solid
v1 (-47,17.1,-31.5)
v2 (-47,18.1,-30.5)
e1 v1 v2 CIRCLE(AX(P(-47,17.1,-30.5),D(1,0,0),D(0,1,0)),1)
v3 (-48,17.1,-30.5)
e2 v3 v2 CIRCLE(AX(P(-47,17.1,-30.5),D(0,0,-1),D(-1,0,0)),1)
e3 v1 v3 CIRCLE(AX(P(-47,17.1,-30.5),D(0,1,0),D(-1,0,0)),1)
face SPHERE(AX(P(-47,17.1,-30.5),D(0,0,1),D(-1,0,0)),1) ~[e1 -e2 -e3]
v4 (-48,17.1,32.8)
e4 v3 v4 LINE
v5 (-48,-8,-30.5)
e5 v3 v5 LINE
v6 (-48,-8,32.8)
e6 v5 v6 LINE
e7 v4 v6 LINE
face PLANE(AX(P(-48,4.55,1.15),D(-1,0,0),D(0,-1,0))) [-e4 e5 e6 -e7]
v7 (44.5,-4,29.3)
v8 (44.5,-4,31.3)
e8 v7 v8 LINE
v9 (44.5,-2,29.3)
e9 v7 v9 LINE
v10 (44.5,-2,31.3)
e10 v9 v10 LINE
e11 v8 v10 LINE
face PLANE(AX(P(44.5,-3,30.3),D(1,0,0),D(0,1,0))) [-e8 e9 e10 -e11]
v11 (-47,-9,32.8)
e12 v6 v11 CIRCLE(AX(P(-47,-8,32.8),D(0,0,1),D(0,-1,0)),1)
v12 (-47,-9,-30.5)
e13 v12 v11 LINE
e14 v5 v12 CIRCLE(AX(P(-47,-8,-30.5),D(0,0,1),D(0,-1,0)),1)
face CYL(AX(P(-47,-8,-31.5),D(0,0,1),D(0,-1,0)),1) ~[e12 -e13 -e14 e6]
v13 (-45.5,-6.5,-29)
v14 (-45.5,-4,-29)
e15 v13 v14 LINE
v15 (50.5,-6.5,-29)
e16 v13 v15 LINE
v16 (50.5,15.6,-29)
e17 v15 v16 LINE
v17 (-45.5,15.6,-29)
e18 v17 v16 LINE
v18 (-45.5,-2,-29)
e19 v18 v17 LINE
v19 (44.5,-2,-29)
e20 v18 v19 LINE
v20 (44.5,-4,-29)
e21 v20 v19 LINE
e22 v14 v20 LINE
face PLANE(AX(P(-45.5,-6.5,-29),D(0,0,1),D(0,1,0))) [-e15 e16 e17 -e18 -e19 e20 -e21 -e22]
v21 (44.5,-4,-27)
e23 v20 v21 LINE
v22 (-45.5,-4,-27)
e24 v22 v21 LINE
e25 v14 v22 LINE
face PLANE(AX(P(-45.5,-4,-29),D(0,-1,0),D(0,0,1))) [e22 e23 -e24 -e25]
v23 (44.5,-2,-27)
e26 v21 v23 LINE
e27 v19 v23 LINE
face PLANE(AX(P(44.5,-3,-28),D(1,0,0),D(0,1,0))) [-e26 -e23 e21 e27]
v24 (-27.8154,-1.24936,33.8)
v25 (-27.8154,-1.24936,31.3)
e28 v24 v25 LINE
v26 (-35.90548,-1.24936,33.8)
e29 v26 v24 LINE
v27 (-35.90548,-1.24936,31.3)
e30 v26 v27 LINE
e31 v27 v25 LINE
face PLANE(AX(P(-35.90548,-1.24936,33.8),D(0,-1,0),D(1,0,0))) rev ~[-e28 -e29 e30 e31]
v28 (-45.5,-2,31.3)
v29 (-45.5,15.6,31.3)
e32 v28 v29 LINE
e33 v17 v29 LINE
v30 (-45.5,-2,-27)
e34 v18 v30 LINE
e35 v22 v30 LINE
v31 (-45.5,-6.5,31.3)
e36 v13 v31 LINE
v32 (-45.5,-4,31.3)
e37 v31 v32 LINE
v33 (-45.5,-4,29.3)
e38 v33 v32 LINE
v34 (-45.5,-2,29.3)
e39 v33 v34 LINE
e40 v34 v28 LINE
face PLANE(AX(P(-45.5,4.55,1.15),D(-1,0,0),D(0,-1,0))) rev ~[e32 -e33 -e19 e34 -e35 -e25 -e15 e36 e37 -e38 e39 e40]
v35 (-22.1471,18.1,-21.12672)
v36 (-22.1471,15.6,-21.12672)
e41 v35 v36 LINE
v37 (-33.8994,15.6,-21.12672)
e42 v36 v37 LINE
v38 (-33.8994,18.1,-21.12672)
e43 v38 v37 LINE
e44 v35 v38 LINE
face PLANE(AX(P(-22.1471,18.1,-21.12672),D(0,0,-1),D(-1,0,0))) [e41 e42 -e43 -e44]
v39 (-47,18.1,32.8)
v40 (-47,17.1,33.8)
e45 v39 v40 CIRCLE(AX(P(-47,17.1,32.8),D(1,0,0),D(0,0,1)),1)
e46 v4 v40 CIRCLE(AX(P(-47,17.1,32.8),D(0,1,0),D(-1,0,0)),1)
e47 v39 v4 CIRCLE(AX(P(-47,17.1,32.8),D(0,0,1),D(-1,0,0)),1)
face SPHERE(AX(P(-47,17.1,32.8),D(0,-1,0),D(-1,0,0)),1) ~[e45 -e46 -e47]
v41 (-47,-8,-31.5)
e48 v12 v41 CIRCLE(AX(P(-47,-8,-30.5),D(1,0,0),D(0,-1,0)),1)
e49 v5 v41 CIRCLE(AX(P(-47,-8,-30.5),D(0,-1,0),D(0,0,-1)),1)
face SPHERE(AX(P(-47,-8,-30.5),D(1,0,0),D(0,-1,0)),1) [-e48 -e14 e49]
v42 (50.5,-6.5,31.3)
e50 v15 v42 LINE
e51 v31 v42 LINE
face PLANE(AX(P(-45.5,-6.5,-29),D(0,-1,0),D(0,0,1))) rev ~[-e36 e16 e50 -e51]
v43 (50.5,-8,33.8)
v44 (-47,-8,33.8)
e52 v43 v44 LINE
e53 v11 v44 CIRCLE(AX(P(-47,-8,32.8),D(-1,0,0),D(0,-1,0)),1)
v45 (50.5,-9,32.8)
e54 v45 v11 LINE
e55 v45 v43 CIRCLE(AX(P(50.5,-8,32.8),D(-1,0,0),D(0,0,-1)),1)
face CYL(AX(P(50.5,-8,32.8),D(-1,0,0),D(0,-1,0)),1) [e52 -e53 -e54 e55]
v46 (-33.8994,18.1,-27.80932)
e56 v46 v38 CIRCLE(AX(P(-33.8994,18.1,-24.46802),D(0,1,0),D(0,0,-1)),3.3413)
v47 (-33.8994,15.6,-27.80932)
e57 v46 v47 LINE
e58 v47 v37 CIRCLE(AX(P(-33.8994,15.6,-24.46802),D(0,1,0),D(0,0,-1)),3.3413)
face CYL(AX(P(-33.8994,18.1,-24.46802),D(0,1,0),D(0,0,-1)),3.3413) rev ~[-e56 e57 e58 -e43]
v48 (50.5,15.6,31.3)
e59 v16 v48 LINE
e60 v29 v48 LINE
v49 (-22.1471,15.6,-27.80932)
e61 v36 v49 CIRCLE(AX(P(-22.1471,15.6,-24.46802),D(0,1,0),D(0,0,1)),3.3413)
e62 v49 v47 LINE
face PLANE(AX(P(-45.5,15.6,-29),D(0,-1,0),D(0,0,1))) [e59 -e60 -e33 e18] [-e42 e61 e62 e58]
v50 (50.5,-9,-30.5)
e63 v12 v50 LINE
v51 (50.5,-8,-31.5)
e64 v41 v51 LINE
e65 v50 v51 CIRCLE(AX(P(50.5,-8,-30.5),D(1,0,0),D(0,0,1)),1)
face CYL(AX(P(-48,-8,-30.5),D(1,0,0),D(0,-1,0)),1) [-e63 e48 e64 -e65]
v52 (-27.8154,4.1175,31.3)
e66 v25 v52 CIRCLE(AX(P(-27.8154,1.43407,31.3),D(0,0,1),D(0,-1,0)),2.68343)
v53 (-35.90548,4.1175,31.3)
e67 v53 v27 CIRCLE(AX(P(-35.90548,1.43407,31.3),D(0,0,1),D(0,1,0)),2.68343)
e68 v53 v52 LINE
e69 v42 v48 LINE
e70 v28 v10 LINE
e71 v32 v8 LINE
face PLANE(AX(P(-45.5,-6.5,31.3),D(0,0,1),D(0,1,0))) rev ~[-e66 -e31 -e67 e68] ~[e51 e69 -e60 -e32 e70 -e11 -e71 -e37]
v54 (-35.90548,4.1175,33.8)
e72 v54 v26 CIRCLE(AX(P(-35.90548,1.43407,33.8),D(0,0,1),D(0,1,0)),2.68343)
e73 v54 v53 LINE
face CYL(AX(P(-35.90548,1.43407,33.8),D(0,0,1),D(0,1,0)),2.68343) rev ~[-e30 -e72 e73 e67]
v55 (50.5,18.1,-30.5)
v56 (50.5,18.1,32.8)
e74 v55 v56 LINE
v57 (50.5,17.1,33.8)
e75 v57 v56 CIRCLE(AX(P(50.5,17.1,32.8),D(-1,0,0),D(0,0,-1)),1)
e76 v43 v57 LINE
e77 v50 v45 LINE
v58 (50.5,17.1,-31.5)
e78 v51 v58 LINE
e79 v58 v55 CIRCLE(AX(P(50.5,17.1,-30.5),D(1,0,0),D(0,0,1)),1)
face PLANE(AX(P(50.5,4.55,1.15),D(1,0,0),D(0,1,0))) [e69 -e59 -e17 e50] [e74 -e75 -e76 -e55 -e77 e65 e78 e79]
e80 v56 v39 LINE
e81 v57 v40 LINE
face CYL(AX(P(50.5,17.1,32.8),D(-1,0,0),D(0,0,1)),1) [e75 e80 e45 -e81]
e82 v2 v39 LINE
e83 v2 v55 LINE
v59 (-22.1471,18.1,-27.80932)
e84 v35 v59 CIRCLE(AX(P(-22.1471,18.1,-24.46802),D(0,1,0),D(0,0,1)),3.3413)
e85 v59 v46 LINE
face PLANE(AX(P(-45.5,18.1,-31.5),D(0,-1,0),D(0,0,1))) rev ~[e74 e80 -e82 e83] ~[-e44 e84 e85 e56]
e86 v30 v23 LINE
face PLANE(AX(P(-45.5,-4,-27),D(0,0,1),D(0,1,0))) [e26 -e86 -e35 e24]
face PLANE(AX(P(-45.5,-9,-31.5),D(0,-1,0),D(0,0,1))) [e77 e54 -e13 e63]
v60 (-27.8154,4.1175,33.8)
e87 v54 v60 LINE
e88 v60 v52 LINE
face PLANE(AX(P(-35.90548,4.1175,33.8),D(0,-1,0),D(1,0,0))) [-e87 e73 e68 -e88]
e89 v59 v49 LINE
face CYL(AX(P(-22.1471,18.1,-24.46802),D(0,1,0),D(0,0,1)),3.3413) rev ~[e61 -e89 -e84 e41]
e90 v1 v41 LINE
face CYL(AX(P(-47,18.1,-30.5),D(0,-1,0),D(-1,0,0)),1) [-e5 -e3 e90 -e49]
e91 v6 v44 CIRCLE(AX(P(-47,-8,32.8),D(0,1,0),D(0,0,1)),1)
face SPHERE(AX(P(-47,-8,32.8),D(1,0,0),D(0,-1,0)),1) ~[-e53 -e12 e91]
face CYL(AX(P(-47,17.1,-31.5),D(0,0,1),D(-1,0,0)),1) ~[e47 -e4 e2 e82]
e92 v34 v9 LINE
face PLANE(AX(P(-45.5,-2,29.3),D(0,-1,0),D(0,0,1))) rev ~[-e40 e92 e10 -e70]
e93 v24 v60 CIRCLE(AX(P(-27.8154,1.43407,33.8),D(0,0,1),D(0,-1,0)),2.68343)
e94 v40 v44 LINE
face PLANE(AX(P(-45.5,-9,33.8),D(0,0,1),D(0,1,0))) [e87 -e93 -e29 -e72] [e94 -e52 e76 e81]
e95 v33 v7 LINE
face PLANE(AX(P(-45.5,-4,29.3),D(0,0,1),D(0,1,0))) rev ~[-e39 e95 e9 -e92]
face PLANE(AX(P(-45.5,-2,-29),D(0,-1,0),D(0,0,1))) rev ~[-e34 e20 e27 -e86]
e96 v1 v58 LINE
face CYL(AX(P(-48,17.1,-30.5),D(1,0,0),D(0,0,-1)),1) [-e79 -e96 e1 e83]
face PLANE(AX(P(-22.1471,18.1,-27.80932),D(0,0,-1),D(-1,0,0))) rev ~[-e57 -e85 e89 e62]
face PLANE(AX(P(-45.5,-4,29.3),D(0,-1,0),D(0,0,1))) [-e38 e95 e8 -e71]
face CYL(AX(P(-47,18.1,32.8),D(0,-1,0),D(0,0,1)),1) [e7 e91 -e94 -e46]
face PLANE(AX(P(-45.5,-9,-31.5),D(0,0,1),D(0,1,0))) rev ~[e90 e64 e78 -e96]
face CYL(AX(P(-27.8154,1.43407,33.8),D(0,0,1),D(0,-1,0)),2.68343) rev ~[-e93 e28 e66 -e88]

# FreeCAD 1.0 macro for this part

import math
import FreeCAD as App
import Part
import Sketcher

V = App.Vector


def edges_at(feature, points):
    """Names of the edges that pass closest to the given points."""
    edges = feature.Shape.Edges
    near = lambda p: min(range(len(edges)), key=lambda i: edges[i].distToShape(Part.Vertex(*p))[0])
    return sorted({f"Edge{near(p) + 1}" for p in points})


def add_polygon(sketch, points):
    """Adds a closed chain of lines whose ends are joined by coincident constraints."""
    first, n = sketch.GeometryCount, len(points)
    for a, b in zip(points, points[1:] + points[:1]):
        sketch.addGeometry(Part.LineSegment(App.Vector(*a, 0), App.Vector(*b, 0)), False)
    for i in range(n):
        sketch.addConstraint(Sketcher.Constraint("Coincident", first + i, 2, first + (i + 1) % n, 1))

doc = App.newDocument("Part")
body = doc.addObject("PartDesign::Body", "Body")

sketch1 = body.newObject("Sketcher::SketchObject", "Sketch")
sketch1.AttachmentSupport = (doc.getObject("YZ_Plane"), [""])
sketch1.MapMode = "FlatFace"
sketch1.AttachmentOffset = App.Placement(V(0, 0, -45.5), App.Rotation())
add_polygon(sketch1, [(18, 34), (18, -32), (-9, -32), (-9, 34)])
sketch1.addConstraint([
    Sketcher.Constraint("Vertical", 0),
    Sketcher.Constraint("Horizontal", 1),
    Sketcher.Constraint("Vertical", 2),
    Sketcher.Constraint("Horizontal", 3),
    Sketcher.Constraint("DistanceX", 1, 2, 1, 1, 27.1),
    Sketcher.Constraint("DistanceY", 0, 2, 0, 1, 65.3),
    Sketcher.Constraint("DistanceX", 1, 2, -1, 1, 9.0),
    Sketcher.Constraint("DistanceY", 0, 2, -1, 1, 31.5),
])
pad1 = body.newObject("PartDesign::Pad", "Pad")
pad1.Profile = sketch1
pad1.Length = 2.5
pad1.Reversed = True

sketch2 = body.newObject("Sketcher::SketchObject", "Sketch001")
sketch2.AttachmentSupport = (doc.getObject("YZ_Plane"), [""])
sketch2.MapMode = "FlatFace"
sketch2.AttachmentOffset = App.Placement(V(0, 0, -45.5), App.Rotation())
add_polygon(sketch2, [(-4, -27), (-4, -29), (-2, -29), (-2, -27)])
add_polygon(sketch2, [(-4, 31.3), (-4, 29.3), (-2, 29.3), (-2, 31.3)])
sketch2.addConstraint([
    Sketcher.Constraint("Vertical", 0),
    Sketcher.Constraint("Horizontal", 1),
    Sketcher.Constraint("Vertical", 2),
    Sketcher.Constraint("Horizontal", 3),
    Sketcher.Constraint("Vertical", 4),
    Sketcher.Constraint("Horizontal", 5),
    Sketcher.Constraint("Vertical", 6),
    Sketcher.Constraint("Horizontal", 7),
    Sketcher.Constraint("Vertical", 3, 2, 4, 2),
    Sketcher.Constraint("Vertical", 2, 2, 5, 2),
    Sketcher.Constraint("Equal", 7, 0),
    Sketcher.Constraint("Equal", 2, 4),
    Sketcher.Constraint("DistanceX", 1, 1, 1, 2, 2.0),
    Sketcher.Constraint("DistanceX", 0, 2, -1, 1, 4.0),
    Sketcher.Constraint("DistanceY", 0, 2, -1, 1, 29.0),
    Sketcher.Constraint("DistanceY", -1, 1, 4, 2, 29.3),
])
pad2 = body.newObject("PartDesign::Pad", "Pad001")
pad2.Profile = sketch2
pad2.Length = 90

sketch3 = body.newObject("Sketcher::SketchObject", "Sketch002")
sketch3.AttachmentSupport = (doc.getObject("YZ_Plane"), [""])
sketch3.MapMode = "FlatFace"
sketch3.AttachmentOffset = App.Placement(V(0, 0, -45.5), App.Rotation())
add_polygon(sketch3, [(-9, 34), (-9, -32), (18, -32), (18, 34)])
add_polygon(sketch3, [(16, -29), (-6, -29), (-6, 31), (16, 31)])
sketch3.addConstraint([
    Sketcher.Constraint("Vertical", 0),
    Sketcher.Constraint("Horizontal", 1),
    Sketcher.Constraint("Vertical", 2),
    Sketcher.Constraint("Horizontal", 3),
    Sketcher.Constraint("Horizontal", 4),
    Sketcher.Constraint("Vertical", 5),
    Sketcher.Constraint("Horizontal", 6),
    Sketcher.Constraint("Vertical", 7),
    Sketcher.Constraint("DistanceX", 1, 1, 1, 2, 27.1),
    Sketcher.Constraint("DistanceX", 4, 2, 4, 1, 22.1),
    Sketcher.Constraint("DistanceY", 0, 2, 0, 1, 65.3),
    Sketcher.Constraint("DistanceY", 5, 1, 5, 2, 60.3),
    Sketcher.Constraint("DistanceX", 0, 2, -1, 1, 9.0),
    Sketcher.Constraint("DistanceY", 4, 2, -1, 1, 29.0),
    Sketcher.Constraint("DistanceY", 0, 2, -1, 1, 31.5),
    Sketcher.Constraint("DistanceX", 4, 2, -1, 1, 6.5),
])
pad3 = body.newObject("PartDesign::Pad", "Pad002")
pad3.Profile = sketch3
pad3.Length = 96

sketch4 = body.newObject("Sketcher::SketchObject", "Sketch003")
sketch4.AttachmentSupport = (doc.getObject("XY_Plane"), [""])
sketch4.MapMode = "FlatFace"
sketch4.AttachmentOffset = App.Placement(V(0, 0, 33.8), App.Rotation())
sketch4.addGeometry([
    Part.ArcOfCircle(Part.Circle(V(-35.9, 1.4, 0), V(0, 0, 1), 2.7), math.radians(90), math.radians(270)),
    Part.LineSegment(V(-35.9, -1.2, 0), V(-27.8, -1.2, 0)),
    Part.ArcOfCircle(Part.Circle(V(-27.8, 1.4, 0), V(0, 0, 1), 2.7), math.radians(-90), math.radians(90)),
    Part.LineSegment(V(-27.8, 4.1, 0), V(-35.9, 4.1, 0)),
], False)
sketch4.addConstraint([
    Sketcher.Constraint("Tangent", 0, 2, 1, 1),
    Sketcher.Constraint("Tangent", 1, 2, 2, 1),
    Sketcher.Constraint("Tangent", 2, 2, 3, 1),
    Sketcher.Constraint("Tangent", 3, 2, 0, 1),
    Sketcher.Constraint("Horizontal", 1),
    Sketcher.Constraint("Horizontal", 3),
    Sketcher.Constraint("Radius", 0, 2.68343),
    Sketcher.Constraint("DistanceX", 1, 1, 1, 2, 8.09008),
    Sketcher.Constraint("DistanceX", 2, 3, -1, 1, 27.8154),
    Sketcher.Constraint("DistanceY", -1, 1, 2, 2, 4.1175),
])
pocket1 = body.newObject("PartDesign::Pocket", "Pocket")
pocket1.Profile = sketch4
pocket1.Length = 2.5

sketch5 = body.newObject("Sketcher::SketchObject", "Sketch004")
sketch5.AttachmentSupport = (doc.getObject("XZ_Plane"), [""])
sketch5.MapMode = "FlatFace"
sketch5.AttachmentOffset = App.Placement(V(0, 0, -18.1), App.Rotation())
sketch5.addGeometry([
    Part.ArcOfCircle(Part.Circle(V(-22.1, -24.5, 0), V(0, 0, 1), 3.3), math.radians(-90), math.radians(90)),
    Part.LineSegment(V(-22.1, -27.8, 0), V(-33.9, -27.8, 0)),
    Part.ArcOfCircle(Part.Circle(V(-33.9, -24.5, 0), V(0, 0, 1), 3.3), math.radians(90), math.radians(270)),
    Part.LineSegment(V(-33.9, -21.1, 0), V(-22.1, -21.1, 0)),
], False)
sketch5.addConstraint([
    Sketcher.Constraint("Tangent", 0, 1, 1, 1),
    Sketcher.Constraint("Tangent", 1, 2, 2, 2),
    Sketcher.Constraint("Tangent", 2, 1, 3, 1),
    Sketcher.Constraint("Tangent", 3, 2, 0, 2),
    Sketcher.Constraint("Horizontal", 1),
    Sketcher.Constraint("Horizontal", 3),
    Sketcher.Constraint("Radius", 0, 3.3413),
    Sketcher.Constraint("DistanceX", 1, 2, 1, 1, 11.7523),
    Sketcher.Constraint("DistanceX", 0, 3, -1, 1, 22.1471),
    Sketcher.Constraint("DistanceY", 0, 3, -1, 1, 24.46802),
])
pocket2 = body.newObject("PartDesign::Pocket", "Pocket001")
pocket2.Profile = sketch5
pocket2.Length = 2.5
pocket2.Reversed = True
doc.recompute()

fillet = body.newObject("PartDesign::Fillet", "Fillet")
fillet.Base = (pocket2, edges_at(pocket2, [
    (1.25, -9, 33.8),
    (1.25, -9, -31.5),
    (1.25, -9, -31.5),
    (1.25, -9, 33.8),
    (-48, -9, 1.15),
    (-48, 4.55, 33.8),
    (-48, 18.1, 1.15),
    (-48, 4.55, -31.5),
    (1.25, 18.1, 33.8),
    (1.25, 18.1, 33.8),
    (1.25, 18.1, -31.5),
    (1.25, 18.1, -31.5),
]))
fillet.Radius = 1

doc.recompute()
